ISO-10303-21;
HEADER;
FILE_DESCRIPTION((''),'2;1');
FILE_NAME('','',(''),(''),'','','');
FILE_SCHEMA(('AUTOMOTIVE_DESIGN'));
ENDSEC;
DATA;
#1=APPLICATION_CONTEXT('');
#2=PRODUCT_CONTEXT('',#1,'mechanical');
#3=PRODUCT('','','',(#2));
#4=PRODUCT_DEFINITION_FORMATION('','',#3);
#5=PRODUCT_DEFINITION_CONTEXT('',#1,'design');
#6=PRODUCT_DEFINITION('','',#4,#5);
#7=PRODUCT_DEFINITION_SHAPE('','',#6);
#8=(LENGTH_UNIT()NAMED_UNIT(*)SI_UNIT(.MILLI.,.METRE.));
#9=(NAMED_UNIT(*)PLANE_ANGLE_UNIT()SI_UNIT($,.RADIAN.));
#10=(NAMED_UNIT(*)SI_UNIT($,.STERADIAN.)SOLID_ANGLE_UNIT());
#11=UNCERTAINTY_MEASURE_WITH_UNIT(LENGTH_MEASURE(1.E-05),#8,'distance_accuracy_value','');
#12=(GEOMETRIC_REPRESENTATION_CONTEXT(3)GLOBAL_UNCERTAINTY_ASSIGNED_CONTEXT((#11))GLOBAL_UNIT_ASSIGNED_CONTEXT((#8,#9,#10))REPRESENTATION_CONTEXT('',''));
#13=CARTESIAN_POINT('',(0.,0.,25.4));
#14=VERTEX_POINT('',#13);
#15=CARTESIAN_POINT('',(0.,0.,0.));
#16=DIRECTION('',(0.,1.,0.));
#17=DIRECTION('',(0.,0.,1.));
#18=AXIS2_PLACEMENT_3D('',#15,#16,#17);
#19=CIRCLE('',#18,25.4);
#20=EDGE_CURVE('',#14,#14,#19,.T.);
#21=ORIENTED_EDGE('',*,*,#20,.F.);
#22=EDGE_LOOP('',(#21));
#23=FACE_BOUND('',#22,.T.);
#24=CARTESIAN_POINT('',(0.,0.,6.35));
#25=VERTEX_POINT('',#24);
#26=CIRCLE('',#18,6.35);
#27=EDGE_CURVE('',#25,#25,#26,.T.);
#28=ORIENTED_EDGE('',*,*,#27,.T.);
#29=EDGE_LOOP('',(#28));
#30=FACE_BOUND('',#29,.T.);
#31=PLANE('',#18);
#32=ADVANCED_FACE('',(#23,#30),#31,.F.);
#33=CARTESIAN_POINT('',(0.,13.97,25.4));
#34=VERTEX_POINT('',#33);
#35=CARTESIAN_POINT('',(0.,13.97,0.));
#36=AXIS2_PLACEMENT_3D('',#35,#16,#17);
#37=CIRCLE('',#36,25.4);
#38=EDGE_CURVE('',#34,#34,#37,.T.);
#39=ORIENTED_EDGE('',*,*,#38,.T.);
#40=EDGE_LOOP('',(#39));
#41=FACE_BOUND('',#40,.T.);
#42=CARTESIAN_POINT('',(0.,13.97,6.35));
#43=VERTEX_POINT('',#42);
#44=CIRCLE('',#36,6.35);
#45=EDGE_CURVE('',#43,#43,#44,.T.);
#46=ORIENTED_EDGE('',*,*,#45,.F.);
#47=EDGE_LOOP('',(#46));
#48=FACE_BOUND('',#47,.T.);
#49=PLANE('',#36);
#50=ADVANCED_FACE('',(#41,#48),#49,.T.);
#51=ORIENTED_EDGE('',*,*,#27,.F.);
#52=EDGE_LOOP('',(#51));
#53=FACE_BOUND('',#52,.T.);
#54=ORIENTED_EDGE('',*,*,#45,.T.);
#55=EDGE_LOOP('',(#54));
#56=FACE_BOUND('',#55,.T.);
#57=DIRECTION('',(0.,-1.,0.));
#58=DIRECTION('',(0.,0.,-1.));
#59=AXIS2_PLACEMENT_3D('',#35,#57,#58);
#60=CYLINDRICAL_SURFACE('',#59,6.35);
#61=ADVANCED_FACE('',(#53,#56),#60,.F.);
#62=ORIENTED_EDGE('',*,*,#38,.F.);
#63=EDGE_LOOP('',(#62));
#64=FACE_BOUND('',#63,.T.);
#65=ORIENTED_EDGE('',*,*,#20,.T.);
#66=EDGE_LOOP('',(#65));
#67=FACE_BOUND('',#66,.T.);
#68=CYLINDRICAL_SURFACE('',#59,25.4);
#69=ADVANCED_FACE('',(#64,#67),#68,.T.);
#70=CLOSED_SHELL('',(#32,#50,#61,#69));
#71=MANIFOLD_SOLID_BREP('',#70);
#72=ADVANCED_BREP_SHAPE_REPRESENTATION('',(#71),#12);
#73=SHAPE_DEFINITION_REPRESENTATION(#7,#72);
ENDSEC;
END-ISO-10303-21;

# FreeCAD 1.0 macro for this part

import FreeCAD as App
import Part
import Sketcher
from FreeCAD import Vector
Q = App.Units.Quantity

doc = App.newDocument("Part")
body = doc.addObject("PartDesign::Body", "Body")

# Sketch on XZ plane
sketch1 = body.newObject("Sketcher::SketchObject", "Sketch")
sketch1.AttachmentSupport = (doc.getObject("XZ_Plane"), [""])
sketch1.MapMode = "FlatFace"
sketch1.addGeometry(Part.Circle(Vector(0, 0, 0), Vector(0, 0, 1), 25), False)
sketch1.addGeometry(Part.Circle(Vector(0, 0, 0), Vector(0, 0, 1), 6), False)
sketch1.addConstraint(Sketcher.Constraint("Coincident", 0, 3, -1, 1))
sketch1.addConstraint(Sketcher.Constraint("Coincident", 1, 3, -1, 1))
sketch1.addConstraint(Sketcher.Constraint("Diameter", 0, Q("2 in")))
sketch1.addConstraint(Sketcher.Constraint("Diameter", 1, Q("0.5 in")))
pad1 = body.newObject("PartDesign::Pad", "Pad")
pad1.Profile = sketch1
pad1.Length = Q("0.55 in")
pad1.Reversed = True

doc.recompute()
